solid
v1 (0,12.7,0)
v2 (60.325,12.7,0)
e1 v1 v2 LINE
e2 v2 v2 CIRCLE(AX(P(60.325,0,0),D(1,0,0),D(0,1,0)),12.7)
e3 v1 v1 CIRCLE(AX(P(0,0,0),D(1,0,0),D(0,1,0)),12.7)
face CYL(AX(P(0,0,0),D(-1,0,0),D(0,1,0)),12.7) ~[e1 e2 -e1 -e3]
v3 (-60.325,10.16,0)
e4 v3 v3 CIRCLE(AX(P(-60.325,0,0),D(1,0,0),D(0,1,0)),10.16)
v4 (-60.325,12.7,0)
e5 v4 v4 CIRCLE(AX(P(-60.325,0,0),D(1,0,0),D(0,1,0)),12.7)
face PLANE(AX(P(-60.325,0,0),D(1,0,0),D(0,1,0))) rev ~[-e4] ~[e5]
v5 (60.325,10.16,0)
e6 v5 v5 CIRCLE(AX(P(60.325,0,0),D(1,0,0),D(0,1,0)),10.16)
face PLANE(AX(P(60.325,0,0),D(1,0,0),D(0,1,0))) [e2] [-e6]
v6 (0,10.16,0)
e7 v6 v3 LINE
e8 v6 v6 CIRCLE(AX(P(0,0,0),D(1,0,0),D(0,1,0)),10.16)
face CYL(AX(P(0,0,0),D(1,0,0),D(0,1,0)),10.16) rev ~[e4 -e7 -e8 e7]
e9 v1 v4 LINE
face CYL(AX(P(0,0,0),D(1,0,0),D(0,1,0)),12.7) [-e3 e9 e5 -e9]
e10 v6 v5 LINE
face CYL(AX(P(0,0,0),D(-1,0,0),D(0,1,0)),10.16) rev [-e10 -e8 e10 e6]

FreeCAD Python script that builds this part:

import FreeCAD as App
import Part
import Sketcher
Q = App.Units.Quantity

doc = App.newDocument("Part")
params = doc.addObject("Spreadsheet::Sheet", "Params")
for row, (alias, value) in enumerate([
    ("sketch1_diameter", "1 in"),
    ("sketch1_diameter2", "0.8 in"),
    ("pad1_length", "4.75 in"),
], start=1):
    params.set(f"A{row}", alias)
    params.set(f"B{row}", "=" + value)
    params.setAlias(f"B{row}", alias)

body = doc.addObject("PartDesign::Body", "Body")

# Sketch on YZ plane
sketch1 = doc.addObject("Sketcher::SketchObject", "Sketch")
body.addObject(sketch1)
sketch1.AttachmentSupport = (doc.YZ_Plane, [""])
sketch1.MapMode = "FlatFace"
sketch1.addGeometry([
    Part.Circle(App.Vector(0, 0, 0), App.Vector(0, 0, 1), 13),
    Part.Circle(App.Vector(0, 0, 0), App.Vector(0, 0, 1), 10),
], False)
sketch1.addConstraint([
    Sketcher.Constraint("Coincident", 0, 3, -1, 1),
    Sketcher.Constraint("Coincident", 1, 3, -1, 1),
    Sketcher.Constraint("Diameter", 0, Q("1 in")),
    Sketcher.Constraint("Diameter", 1, Q("0.8 in")),
])
sketch1.setExpression("Constraints[2]", "Params.sketch1_diameter")
sketch1.setExpression("Constraints[3]", "Params.sketch1_diameter2")
pad1 = doc.addObject("PartDesign::Pad", "Pad")
body.addObject(pad1)
pad1.Profile = sketch1
pad1.setExpression("Length", "Params.pad1_length")
pad1.Midplane = True

doc.recompute()
